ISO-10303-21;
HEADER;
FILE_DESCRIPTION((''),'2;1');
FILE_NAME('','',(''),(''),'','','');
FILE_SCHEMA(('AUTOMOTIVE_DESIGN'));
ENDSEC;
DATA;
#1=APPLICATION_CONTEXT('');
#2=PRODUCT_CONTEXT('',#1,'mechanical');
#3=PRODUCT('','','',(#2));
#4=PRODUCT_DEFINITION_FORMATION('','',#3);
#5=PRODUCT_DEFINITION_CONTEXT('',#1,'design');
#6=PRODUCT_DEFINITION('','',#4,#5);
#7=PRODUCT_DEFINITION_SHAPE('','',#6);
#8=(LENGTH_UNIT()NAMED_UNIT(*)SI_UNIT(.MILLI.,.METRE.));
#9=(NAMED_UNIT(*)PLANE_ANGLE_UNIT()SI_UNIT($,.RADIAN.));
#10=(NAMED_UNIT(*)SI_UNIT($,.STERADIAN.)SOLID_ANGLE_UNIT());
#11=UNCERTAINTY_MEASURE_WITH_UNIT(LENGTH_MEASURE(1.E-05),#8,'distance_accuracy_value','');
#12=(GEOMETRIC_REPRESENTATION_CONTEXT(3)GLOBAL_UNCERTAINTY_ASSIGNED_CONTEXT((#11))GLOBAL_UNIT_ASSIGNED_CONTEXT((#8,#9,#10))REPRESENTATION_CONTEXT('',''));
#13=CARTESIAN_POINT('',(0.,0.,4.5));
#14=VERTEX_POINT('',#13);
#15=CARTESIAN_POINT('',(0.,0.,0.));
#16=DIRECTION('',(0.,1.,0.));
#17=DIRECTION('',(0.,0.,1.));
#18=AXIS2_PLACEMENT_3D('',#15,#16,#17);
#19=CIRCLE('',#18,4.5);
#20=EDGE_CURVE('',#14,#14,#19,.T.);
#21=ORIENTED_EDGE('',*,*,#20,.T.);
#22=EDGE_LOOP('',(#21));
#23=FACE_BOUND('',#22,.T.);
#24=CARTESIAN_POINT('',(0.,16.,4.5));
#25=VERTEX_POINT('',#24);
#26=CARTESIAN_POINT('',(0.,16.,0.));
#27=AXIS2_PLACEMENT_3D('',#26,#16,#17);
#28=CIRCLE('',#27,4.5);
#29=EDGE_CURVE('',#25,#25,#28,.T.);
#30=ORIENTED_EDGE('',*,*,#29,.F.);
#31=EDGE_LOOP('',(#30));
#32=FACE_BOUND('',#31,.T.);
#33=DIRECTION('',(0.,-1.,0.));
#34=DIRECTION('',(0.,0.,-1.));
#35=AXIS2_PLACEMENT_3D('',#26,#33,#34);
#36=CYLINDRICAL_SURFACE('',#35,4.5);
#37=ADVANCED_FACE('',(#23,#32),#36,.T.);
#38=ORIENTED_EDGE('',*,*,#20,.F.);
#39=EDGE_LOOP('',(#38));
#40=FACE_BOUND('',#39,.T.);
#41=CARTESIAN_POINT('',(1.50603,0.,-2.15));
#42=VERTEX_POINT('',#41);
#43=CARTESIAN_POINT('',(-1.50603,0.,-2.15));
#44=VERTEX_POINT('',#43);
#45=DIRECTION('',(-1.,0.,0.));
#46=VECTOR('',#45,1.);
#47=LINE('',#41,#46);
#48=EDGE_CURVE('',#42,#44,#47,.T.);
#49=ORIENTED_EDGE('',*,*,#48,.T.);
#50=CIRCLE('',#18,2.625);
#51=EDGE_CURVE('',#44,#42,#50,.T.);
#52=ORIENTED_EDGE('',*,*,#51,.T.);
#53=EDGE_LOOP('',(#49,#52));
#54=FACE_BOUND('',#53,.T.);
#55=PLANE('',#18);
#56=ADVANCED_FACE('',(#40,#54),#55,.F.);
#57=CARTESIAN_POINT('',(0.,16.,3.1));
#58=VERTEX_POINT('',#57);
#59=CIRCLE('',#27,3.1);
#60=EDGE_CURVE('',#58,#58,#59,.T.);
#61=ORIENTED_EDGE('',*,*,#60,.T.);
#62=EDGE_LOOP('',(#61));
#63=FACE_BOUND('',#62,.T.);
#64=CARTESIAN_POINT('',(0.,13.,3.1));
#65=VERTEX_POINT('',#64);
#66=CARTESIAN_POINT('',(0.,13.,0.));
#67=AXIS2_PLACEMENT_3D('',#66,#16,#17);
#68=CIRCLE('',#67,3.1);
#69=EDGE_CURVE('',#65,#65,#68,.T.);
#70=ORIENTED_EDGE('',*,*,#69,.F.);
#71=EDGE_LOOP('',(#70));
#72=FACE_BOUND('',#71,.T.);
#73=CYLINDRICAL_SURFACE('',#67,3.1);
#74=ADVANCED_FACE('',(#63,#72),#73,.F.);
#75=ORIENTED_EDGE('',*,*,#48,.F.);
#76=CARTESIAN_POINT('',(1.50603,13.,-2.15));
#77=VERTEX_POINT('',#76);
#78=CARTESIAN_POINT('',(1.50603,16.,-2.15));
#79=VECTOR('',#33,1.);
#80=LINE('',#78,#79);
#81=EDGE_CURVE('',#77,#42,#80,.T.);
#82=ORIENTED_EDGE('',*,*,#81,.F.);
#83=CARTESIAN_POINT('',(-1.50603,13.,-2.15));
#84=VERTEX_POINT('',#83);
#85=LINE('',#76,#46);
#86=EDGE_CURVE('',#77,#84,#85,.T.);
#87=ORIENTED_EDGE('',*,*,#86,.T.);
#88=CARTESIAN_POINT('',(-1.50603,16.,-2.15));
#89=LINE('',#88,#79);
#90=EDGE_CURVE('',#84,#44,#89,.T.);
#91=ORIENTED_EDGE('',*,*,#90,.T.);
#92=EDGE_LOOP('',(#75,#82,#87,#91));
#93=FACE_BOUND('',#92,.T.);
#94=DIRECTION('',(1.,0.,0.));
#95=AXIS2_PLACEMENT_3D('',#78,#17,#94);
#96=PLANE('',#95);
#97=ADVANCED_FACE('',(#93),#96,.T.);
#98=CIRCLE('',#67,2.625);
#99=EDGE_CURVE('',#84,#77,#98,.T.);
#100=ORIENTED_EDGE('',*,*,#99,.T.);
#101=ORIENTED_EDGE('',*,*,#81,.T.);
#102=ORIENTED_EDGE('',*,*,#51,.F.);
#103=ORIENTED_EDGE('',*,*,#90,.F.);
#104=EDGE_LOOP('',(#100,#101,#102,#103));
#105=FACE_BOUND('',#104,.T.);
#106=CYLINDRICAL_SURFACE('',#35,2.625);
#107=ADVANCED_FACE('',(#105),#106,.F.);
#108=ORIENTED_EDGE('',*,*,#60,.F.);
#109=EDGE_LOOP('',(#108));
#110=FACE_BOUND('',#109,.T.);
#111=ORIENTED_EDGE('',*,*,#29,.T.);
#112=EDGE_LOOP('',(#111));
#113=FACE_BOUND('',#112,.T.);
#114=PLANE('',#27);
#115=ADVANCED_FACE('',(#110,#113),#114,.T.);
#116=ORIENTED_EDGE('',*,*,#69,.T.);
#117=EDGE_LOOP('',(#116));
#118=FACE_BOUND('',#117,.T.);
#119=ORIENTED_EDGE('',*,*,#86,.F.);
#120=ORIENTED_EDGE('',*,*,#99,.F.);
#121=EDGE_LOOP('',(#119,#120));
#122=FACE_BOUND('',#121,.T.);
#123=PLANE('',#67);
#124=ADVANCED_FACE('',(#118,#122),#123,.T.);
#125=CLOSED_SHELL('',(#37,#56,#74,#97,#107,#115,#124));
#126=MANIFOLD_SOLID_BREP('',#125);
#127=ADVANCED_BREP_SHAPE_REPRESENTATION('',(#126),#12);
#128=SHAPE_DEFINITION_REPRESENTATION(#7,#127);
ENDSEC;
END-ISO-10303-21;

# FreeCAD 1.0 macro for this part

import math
import FreeCAD as App
import Part
import Sketcher
from FreeCAD import Vector
Q = App.Units.Quantity

doc = App.newDocument("Part")
params = doc.addObject("Spreadsheet::Sheet", "Params")
for row, (alias, value) in enumerate([
    ("sketch1_diameter", "9 mm"),
    ("pad1_length", "16 mm"),
    ("sketch2_diameter", "6.2 mm"),
    ("pocket1_length", "3 mm"),
], start=1):
    params.set(f"A{row}", alias)
    params.set(f"B{row}", "=" + value)
    params.setAlias(f"B{row}", alias)

body = doc.addObject("PartDesign::Body", "Body")

sketch1 = body.newObject("Sketcher::SketchObject", "Sketch")
sketch1.AttachmentSupport = (doc.getObject("XZ_Plane"), [""])
sketch1.MapMode = "FlatFace"
sketch1.addGeometry([
    Part.Circle(Vector(0, 0, 0), Vector(0, 0, 1), 4.5),
    Part.LineSegment(Vector(-1.50603, -2.15, 0), Vector(1.50603, -2.15, 0)),
    Part.ArcOfCircle(Part.Circle(Vector(0, 0, 0), Vector(0, 0, 1), 2.625), math.radians(-54.98957), math.radians(234.98957)),
], False)
sketch1.addConstraint([
    Sketcher.Constraint("Coincident", 1, 1, 2, 2),
    Sketcher.Constraint("Coincident", 2, 1, 1, 2),
    Sketcher.Constraint("Horizontal", 1),
    Sketcher.Constraint("Coincident", 0, 3, -1, 1),
    Sketcher.Constraint("Coincident", 2, 3, -1, 1),
    Sketcher.Constraint("Diameter", 0, Q("9 mm")),
    Sketcher.Constraint("Radius", 2, Q("2.625 mm")),
    Sketcher.Constraint("DistanceY", 1, 1, -1, 1, Q("2.15 mm")),
])
sketch1.setExpression("Constraints[5]", "Params.sketch1_diameter")
pad1 = body.newObject("PartDesign::Pad", "Pad")
pad1.Profile = sketch1
pad1.setExpression("Length", "Params.pad1_length")
pad1.Reversed = True

sketch2 = body.newObject("Sketcher::SketchObject", "Sketch001")
sketch2.AttachmentSupport = (doc.getObject("XZ_Plane"), [""])
sketch2.MapMode = "FlatFace"
sketch2.AttachmentOffset = App.Placement(Vector(0, 0, -16), App.Rotation())
sketch2.addGeometry(Part.Circle(Vector(0, 0, 0), Vector(0, 0, 1), 3.1), False)
sketch2.addConstraint([
    Sketcher.Constraint("Coincident", 0, 3, -1, 1),
    Sketcher.Constraint("Diameter", 0, Q("6.2 mm")),
])
sketch2.setExpression("Constraints[1]", "Params.sketch2_diameter")
pocket1 = body.newObject("PartDesign::Pocket", "Pocket")
pocket1.Profile = sketch2
pocket1.setExpression("Length", "Params.pocket1_length")
pocket1.Reversed = True

doc.recompute()
